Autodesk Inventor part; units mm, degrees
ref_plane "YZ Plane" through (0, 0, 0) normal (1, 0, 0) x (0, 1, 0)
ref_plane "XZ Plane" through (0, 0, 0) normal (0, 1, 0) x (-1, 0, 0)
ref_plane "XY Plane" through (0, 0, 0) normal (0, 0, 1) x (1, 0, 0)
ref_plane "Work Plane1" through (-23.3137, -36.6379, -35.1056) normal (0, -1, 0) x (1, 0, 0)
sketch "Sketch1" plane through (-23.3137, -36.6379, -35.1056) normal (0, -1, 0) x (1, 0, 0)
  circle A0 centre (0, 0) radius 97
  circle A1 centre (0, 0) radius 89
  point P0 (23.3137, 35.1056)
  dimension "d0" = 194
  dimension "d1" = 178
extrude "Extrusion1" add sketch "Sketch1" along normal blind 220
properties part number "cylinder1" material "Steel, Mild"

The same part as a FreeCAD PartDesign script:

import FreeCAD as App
import Part
import Sketcher

doc = App.newDocument("Part")
body = doc.addObject("PartDesign::Body", "Body")

# Sketch on XZ plane
sketch1 = body.newObject("Sketcher::SketchObject", "Sketch")
sketch1.AttachmentSupport = (doc.getObject("XZ_Plane"), [""])
sketch1.MapMode = "FlatFace"
sketch1.AttachmentOffset = App.Placement(App.Vector(0, 0, 36.6379), App.Rotation())
sketch1.addGeometry([
    Part.Circle(App.Vector(-23.3137, -35.1056, 0), App.Vector(0, 0, 1), 97),
    Part.Circle(App.Vector(-23.3137, -35.1056, 0), App.Vector(0, 0, 1), 89),
], False)
sketch1.addConstraint([
    Sketcher.Constraint("Coincident", 1, 3, 0, 3),
    Sketcher.Constraint("Diameter", 0, 194.0),
    Sketcher.Constraint("Diameter", 1, 178.0),
    Sketcher.Constraint("DistanceX", 0, 3, -1, 1, 23.3137),
    Sketcher.Constraint("DistanceY", 0, 3, -1, 1, 35.1056),
])
pad1 = body.newObject("PartDesign::Pad", "Pad")
pad1.Profile = sketch1
pad1.Length = 220

doc.recompute()
